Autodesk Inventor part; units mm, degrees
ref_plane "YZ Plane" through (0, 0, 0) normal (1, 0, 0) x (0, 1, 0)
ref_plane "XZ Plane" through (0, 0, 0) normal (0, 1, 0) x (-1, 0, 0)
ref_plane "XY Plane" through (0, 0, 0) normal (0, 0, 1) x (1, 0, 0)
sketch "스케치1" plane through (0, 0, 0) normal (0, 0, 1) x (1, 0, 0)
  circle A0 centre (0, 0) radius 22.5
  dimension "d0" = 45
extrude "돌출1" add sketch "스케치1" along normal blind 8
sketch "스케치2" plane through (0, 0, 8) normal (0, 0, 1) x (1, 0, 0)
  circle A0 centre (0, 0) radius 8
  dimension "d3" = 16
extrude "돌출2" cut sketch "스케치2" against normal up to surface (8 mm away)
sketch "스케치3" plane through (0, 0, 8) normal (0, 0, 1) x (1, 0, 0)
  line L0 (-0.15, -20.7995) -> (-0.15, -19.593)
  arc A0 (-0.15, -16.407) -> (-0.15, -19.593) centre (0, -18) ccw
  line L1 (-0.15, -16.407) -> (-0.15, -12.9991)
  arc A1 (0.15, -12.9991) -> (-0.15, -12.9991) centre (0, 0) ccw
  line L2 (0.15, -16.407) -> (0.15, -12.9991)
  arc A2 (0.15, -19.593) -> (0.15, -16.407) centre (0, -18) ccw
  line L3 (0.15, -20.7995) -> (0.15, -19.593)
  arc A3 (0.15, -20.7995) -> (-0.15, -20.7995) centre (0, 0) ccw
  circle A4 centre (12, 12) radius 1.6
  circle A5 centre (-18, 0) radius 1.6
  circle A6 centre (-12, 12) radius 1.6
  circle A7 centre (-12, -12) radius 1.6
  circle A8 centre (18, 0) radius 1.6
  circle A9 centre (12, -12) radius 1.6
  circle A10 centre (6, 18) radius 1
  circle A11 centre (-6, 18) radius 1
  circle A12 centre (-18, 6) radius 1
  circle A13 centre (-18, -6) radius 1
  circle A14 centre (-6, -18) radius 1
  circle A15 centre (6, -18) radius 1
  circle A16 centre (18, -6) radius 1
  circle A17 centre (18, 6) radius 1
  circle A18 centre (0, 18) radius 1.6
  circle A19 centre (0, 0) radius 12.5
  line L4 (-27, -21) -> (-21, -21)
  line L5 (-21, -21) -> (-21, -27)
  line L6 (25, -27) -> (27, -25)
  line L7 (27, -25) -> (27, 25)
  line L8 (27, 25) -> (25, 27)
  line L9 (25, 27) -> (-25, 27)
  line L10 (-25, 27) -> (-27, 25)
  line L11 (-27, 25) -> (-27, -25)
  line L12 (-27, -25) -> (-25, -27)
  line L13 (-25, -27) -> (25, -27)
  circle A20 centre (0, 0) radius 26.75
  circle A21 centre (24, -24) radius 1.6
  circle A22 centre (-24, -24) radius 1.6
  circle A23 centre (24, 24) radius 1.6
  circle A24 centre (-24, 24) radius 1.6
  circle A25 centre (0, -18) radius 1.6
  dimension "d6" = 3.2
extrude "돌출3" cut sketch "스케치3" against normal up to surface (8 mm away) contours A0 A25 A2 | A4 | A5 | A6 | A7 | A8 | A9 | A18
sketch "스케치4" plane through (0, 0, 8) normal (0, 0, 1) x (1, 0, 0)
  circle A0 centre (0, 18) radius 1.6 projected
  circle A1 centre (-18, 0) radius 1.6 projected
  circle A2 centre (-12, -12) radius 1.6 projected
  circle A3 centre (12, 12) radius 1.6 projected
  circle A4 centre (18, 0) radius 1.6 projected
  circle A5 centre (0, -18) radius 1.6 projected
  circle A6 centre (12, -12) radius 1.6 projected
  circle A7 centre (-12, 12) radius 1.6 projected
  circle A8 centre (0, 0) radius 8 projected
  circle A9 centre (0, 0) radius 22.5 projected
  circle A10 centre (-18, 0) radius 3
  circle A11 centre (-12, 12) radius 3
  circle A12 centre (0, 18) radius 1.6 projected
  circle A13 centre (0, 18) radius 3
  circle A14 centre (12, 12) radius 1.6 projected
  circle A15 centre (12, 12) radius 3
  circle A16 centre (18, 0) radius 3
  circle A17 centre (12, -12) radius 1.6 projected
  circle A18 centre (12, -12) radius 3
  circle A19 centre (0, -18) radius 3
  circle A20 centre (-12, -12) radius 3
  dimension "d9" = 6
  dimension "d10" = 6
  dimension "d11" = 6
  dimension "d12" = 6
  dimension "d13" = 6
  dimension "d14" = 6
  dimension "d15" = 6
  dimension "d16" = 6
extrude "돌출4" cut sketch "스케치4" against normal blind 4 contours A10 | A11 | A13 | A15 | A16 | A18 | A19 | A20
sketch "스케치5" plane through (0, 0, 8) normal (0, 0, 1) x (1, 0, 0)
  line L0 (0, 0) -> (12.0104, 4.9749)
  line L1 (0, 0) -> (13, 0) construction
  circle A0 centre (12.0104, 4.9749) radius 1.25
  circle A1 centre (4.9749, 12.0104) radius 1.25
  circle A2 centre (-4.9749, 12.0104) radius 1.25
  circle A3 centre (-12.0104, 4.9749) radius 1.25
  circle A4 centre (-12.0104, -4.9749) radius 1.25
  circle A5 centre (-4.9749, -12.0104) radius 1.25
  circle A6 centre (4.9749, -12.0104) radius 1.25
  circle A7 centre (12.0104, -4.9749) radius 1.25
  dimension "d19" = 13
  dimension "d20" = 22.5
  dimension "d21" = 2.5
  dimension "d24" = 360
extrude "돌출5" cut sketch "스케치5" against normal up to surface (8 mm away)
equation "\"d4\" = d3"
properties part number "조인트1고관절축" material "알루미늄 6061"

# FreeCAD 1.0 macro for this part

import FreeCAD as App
import Part
import Sketcher

V = App.Vector
Q = App.Units.Quantity

doc = App.newDocument("Part")
body = doc.addObject("PartDesign::Body", "Body")

sketch1 = body.newObject("Sketcher::SketchObject", "Sketch")
sketch1.AttachmentSupport = (doc.getObject("XY_Plane"), [""])
sketch1.MapMode = "FlatFace"
sketch1.addGeometry(Part.Circle(V(0, 0, 0), V(0, 0, 1), 22), False)
sketch1.addConstraint([
    Sketcher.Constraint("Coincident", 0, 3, -1, 1),
    Sketcher.Constraint("Diameter", 0, Q("45 mm")),
])
pad1 = body.newObject("PartDesign::Pad", "Pad")
pad1.Profile = sketch1
pad1.Length = 8

sketch2 = body.newObject("Sketcher::SketchObject", "Sketch001")
sketch2.AttachmentSupport = (doc.getObject("XY_Plane"), [""])
sketch2.MapMode = "FlatFace"
sketch2.AttachmentOffset = App.Placement(V(0, 0, 8), App.Rotation())
sketch2.addGeometry(Part.Circle(V(0, 0, 0), V(0, 0, 1), 8), False)
sketch2.addConstraint([
    Sketcher.Constraint("Coincident", 0, 3, -1, 1),
    Sketcher.Constraint("Diameter", 0, Q("16 mm")),
])
pocket1 = body.newObject("PartDesign::Pocket", "Pocket")
pocket1.Profile = sketch2
pocket1.Length = 8

sketch3 = body.newObject("Sketcher::SketchObject", "Sketch002")
sketch3.AttachmentSupport = (doc.getObject("XY_Plane"), [""])
sketch3.MapMode = "FlatFace"
sketch3.AttachmentOffset = App.Placement(V(0, 0, 8), App.Rotation())
sketch3.addGeometry([
    Part.Circle(V(0, -18, 0), V(0, 0, 1), 1.6),
    Part.Circle(V(12, 12, 0), V(0, 0, 1), 1.6),
    Part.Circle(V(-18, 0, 0), V(0, 0, 1), 1.6),
    Part.Circle(V(-12, 12, 0), V(0, 0, 1), 1.6),
    Part.Circle(V(-12, -12, 0), V(0, 0, 1), 1.6),
    Part.Circle(V(18, 0, 0), V(0, 0, 1), 1.6),
    Part.Circle(V(12, -12, 0), V(0, 0, 1), 1.6),
    Part.Circle(V(0, 18, 0), V(0, 0, 1), 1.6),
], False)
sketch3.addConstraint([
    Sketcher.Constraint("Equal", 0, 1),
    Sketcher.Constraint("Equal", 1, 2),
    Sketcher.Constraint("Equal", 2, 3),
    Sketcher.Constraint("Equal", 3, 4),
    Sketcher.Constraint("Equal", 4, 5),
    Sketcher.Constraint("Equal", 5, 6),
    Sketcher.Constraint("Equal", 6, 7),
    Sketcher.Constraint("Symmetric", 1, 3, 4, 3, -1, 1),
    Sketcher.Constraint("Symmetric", 2, 3, 5, 3, -1, 1),
    Sketcher.Constraint("Symmetric", 3, 3, 6, 3, -1, 1),
    Sketcher.Constraint("Symmetric", 0, 3, 7, 3, -1, 1),
    Sketcher.Constraint("Symmetric", 1, 3, 3, 3, -2),
    Sketcher.Constraint("PointOnObject", 0, 3, -2),
    Sketcher.Constraint("PointOnObject", 2, 3, -1),
    Sketcher.Constraint("Diameter", 0, Q("3.2 mm")),
    Sketcher.Constraint("DistanceY", 0, 3, -1, 1, Q("18 mm")),
    Sketcher.Constraint("DistanceX", -1, 1, 1, 3, Q("12 mm")),
    Sketcher.Constraint("DistanceY", -1, 1, 1, 3, Q("12 mm")),
    Sketcher.Constraint("DistanceX", 2, 3, -1, 1, Q("18 mm")),
])
pocket2 = body.newObject("PartDesign::Pocket", "Pocket001")
pocket2.Profile = sketch3
pocket2.Length = 8

sketch4 = body.newObject("Sketcher::SketchObject", "Sketch003")
sketch4.AttachmentSupport = (doc.getObject("XY_Plane"), [""])
sketch4.MapMode = "FlatFace"
sketch4.AttachmentOffset = App.Placement(V(0, 0, 8), App.Rotation())
sketch4.addGeometry([
    Part.Circle(V(-18, 0, 0), V(0, 0, 1), 3),
    Part.Circle(V(-18, 0, 0), V(0, 0, 1), 1.6),
    Part.Circle(V(-12, 12, 0), V(0, 0, 1), 3),
    Part.Circle(V(-12, 12, 0), V(0, 0, 1), 1.6),
    Part.Circle(V(0, 18, 0), V(0, 0, 1), 3),
    Part.Circle(V(0, 18, 0), V(0, 0, 1), 1.6),
    Part.Circle(V(12, 12, 0), V(0, 0, 1), 3),
    Part.Circle(V(12, 12, 0), V(0, 0, 1), 1.6),
    Part.Circle(V(18, 0, 0), V(0, 0, 1), 3),
    Part.Circle(V(18, 0, 0), V(0, 0, 1), 1.6),
    Part.Circle(V(12, -12, 0), V(0, 0, 1), 3),
    Part.Circle(V(12, -12, 0), V(0, 0, 1), 1.6),
    Part.Circle(V(0, -18, 0), V(0, 0, 1), 3),
    Part.Circle(V(0, -18, 0), V(0, 0, 1), 1.6),
    Part.Circle(V(-12, -12, 0), V(0, 0, 1), 3),
    Part.Circle(V(-12, -12, 0), V(0, 0, 1), 1.6),
], False)
sketch4.addConstraint([
    Sketcher.Constraint("Coincident", 1, 3, 0, 3),
    Sketcher.Constraint("Coincident", 3, 3, 2, 3),
    Sketcher.Constraint("Coincident", 5, 3, 4, 3),
    Sketcher.Constraint("Coincident", 7, 3, 6, 3),
    Sketcher.Constraint("Coincident", 9, 3, 8, 3),
    Sketcher.Constraint("Coincident", 11, 3, 10, 3),
    Sketcher.Constraint("Coincident", 13, 3, 12, 3),
    Sketcher.Constraint("Coincident", 15, 3, 14, 3),
    Sketcher.Constraint("Equal", 0, 2),
    Sketcher.Constraint("Equal", 1, 3),
    Sketcher.Constraint("Equal", 2, 4),
    Sketcher.Constraint("Equal", 3, 5),
    Sketcher.Constraint("Equal", 4, 6),
    Sketcher.Constraint("Equal", 5, 7),
    Sketcher.Constraint("Equal", 6, 8),
    Sketcher.Constraint("Equal", 7, 9),
    Sketcher.Constraint("Equal", 8, 10),
    Sketcher.Constraint("Equal", 9, 11),
    Sketcher.Constraint("Equal", 10, 12),
    Sketcher.Constraint("Equal", 11, 13),
    Sketcher.Constraint("Equal", 12, 14),
    Sketcher.Constraint("Equal", 13, 15),
    Sketcher.Constraint("Symmetric", 0, 3, 8, 3, -1, 1),
    Sketcher.Constraint("Symmetric", 2, 3, 10, 3, -1, 1),
    Sketcher.Constraint("Symmetric", 4, 3, 12, 3, -1, 1),
    Sketcher.Constraint("Symmetric", 6, 3, 14, 3, -1, 1),
    Sketcher.Constraint("Symmetric", 2, 3, 6, 3, -2),
    Sketcher.Constraint("PointOnObject", 0, 3, -1),
    Sketcher.Constraint("PointOnObject", 4, 3, -2),
    Sketcher.Constraint("Diameter", 0, Q("6 mm")),
    Sketcher.Constraint("DistanceX", 0, 3, 2, 3, Q("6 mm")),
    Sketcher.Constraint("DistanceY", 2, 3, 4, 3, Q("6 mm")),
    Sketcher.Constraint("Diameter", 1, Q("3.2 mm")),
    Sketcher.Constraint("DistanceX", 0, 3, -1, 1, Q("18 mm")),
    Sketcher.Constraint("DistanceY", -1, 1, 2, 3, Q("12 mm")),
])
pocket3 = body.newObject("PartDesign::Pocket", "Pocket002")
pocket3.Profile = sketch4
pocket3.Length = 4

sketch5 = body.newObject("Sketcher::SketchObject", "Sketch004")
sketch5.AttachmentSupport = (doc.getObject("XY_Plane"), [""])
sketch5.MapMode = "FlatFace"
sketch5.AttachmentOffset = App.Placement(V(0, 0, 8), App.Rotation())
sketch5.addGeometry([
    Part.Circle(V(12, 5, 0), V(0, 0, 1), 1.2),
    Part.Circle(V(5, 12, 0), V(0, 0, 1), 1.2),
    Part.Circle(V(-5, 12, 0), V(0, 0, 1), 1.2),
    Part.Circle(V(-12, 5, 0), V(0, 0, 1), 1.2),
    Part.Circle(V(-12, -5, 0), V(0, 0, 1), 1.2),
    Part.Circle(V(-5, -12, 0), V(0, 0, 1), 1.2),
    Part.Circle(V(5, -12, 0), V(0, 0, 1), 1.2),
    Part.Circle(V(12, -5, 0), V(0, 0, 1), 1.2),
], False)
sketch5.addConstraint([
    Sketcher.Constraint("Equal", 0, 1),
    Sketcher.Constraint("Equal", 1, 2),
    Sketcher.Constraint("Equal", 2, 3),
    Sketcher.Constraint("Equal", 3, 4),
    Sketcher.Constraint("Equal", 4, 5),
    Sketcher.Constraint("Equal", 5, 6),
    Sketcher.Constraint("Equal", 6, 7),
    Sketcher.Constraint("Symmetric", 0, 3, 4, 3, -1, 1),
    Sketcher.Constraint("Symmetric", 1, 3, 5, 3, -1, 1),
    Sketcher.Constraint("Symmetric", 2, 3, 6, 3, -1, 1),
    Sketcher.Constraint("Symmetric", 3, 3, 7, 3, -1, 1),
    Sketcher.Constraint("Symmetric", 1, 3, 2, 3, -2),
    Sketcher.Constraint("Symmetric", 0, 3, 3, 3, -2),
    Sketcher.Constraint("Diameter", 0, Q("2.5 mm")),
    Sketcher.Constraint("DistanceY", -1, 1, 0, 3, Q("4.975 mm")),
    Sketcher.Constraint("DistanceX", -1, 1, 1, 3, Q("4.975 mm")),
    Sketcher.Constraint("DistanceX", -1, 1, 0, 3, Q("12.0104 mm")),
    Sketcher.Constraint("DistanceY", -1, 1, 1, 3, Q("12.0104 mm")),
])
pocket4 = body.newObject("PartDesign::Pocket", "Pocket003")
pocket4.Profile = sketch5
pocket4.Length = 8

doc.recompute()
